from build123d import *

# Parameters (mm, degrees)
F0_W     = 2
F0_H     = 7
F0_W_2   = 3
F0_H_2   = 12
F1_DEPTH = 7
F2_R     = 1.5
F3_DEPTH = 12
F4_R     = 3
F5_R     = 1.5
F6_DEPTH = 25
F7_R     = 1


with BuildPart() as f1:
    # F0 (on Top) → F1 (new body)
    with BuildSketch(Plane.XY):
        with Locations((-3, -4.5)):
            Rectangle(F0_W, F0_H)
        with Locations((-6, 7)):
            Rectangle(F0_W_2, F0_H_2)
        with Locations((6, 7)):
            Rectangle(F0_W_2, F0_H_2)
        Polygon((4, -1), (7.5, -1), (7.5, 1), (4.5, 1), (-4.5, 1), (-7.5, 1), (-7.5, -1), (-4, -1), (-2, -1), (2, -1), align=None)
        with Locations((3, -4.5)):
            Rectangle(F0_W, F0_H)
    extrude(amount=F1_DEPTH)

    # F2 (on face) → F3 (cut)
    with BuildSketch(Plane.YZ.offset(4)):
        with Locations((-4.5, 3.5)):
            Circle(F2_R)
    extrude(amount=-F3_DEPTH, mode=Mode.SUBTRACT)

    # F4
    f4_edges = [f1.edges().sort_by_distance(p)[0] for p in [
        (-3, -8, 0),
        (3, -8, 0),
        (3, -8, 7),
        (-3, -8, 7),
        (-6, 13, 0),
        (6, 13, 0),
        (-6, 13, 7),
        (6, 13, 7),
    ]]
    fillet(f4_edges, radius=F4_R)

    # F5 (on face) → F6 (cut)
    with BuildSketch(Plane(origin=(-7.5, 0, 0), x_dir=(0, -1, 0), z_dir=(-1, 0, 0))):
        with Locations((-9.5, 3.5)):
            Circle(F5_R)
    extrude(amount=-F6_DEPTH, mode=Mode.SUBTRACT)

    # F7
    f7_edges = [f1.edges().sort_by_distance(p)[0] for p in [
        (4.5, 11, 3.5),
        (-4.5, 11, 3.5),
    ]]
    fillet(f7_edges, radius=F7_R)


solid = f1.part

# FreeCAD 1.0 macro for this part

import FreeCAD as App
import Part
import Sketcher

V = App.Vector
Q = App.Units.Quantity


def edges_at(feature, points):
    """Names of the edges that pass closest to the given points."""
    edges = feature.Shape.Edges
    near = lambda p: min(range(len(edges)), key=lambda i: edges[i].distToShape(Part.Vertex(*p))[0])
    return sorted({f"Edge{near(p) + 1}" for p in points})

doc = App.newDocument("Part")
body = doc.addObject("PartDesign::Body", "Body")

sketch1 = doc.addObject("Sketcher::SketchObject", "Sketch")
body.addObject(sketch1)
sketch1.AttachmentSupport = (doc.XY_Plane, [""])
sketch1.MapMode = "FlatFace"
sketch1.addGeometry(Part.LineSegment(V(-4, -1, 0), V(-4, -8, 0)), False)
sketch1.addGeometry(Part.LineSegment(V(-4, -8, 0), V(-2, -8, 0)), False)
sketch1.addGeometry(Part.LineSegment(V(-2, -8, 0), V(-2, -1, 0)), False)
sketch1.addGeometry(Part.LineSegment(V(-2, -1, 0), V(2, -1, 0)), False)
sketch1.addGeometry(Part.LineSegment(V(2, -1, 0), V(2, -8, 0)), False)
sketch1.addGeometry(Part.LineSegment(V(2, -8, 0), V(4, -8, 0)), False)
sketch1.addGeometry(Part.LineSegment(V(4, -8, 0), V(4, -1, 0)), False)
sketch1.addGeometry(Part.LineSegment(V(4, -1, 0), V(7.5, -1, 0)), False)
sketch1.addGeometry(Part.LineSegment(V(7.5, -1, 0), V(7.5, 13, 0)), False)
sketch1.addGeometry(Part.LineSegment(V(7.5, 13, 0), V(4.5, 13, 0)), False)
sketch1.addGeometry(Part.LineSegment(V(4.5, 13, 0), V(4.5, 1, 0)), False)
sketch1.addGeometry(Part.LineSegment(V(4.5, 1, 0), V(-4.5, 1, 0)), False)
sketch1.addGeometry(Part.LineSegment(V(-4.5, 1, 0), V(-4.5, 13, 0)), False)
sketch1.addGeometry(Part.LineSegment(V(-4.5, 13, 0), V(-7.5, 13, 0)), False)
sketch1.addGeometry(Part.LineSegment(V(-7.5, 13, 0), V(-7.5, -1, 0)), False)
sketch1.addGeometry(Part.LineSegment(V(-7.5, -1, 0), V(-4, -1, 0)), False)
sketch1.addConstraint(Sketcher.Constraint("Coincident", 0, 2, 1, 1))
sketch1.addConstraint(Sketcher.Constraint("Coincident", 1, 2, 2, 1))
sketch1.addConstraint(Sketcher.Constraint("Coincident", 2, 2, 3, 1))
sketch1.addConstraint(Sketcher.Constraint("Coincident", 3, 2, 4, 1))
sketch1.addConstraint(Sketcher.Constraint("Coincident", 4, 2, 5, 1))
sketch1.addConstraint(Sketcher.Constraint("Coincident", 5, 2, 6, 1))
sketch1.addConstraint(Sketcher.Constraint("Coincident", 6, 2, 7, 1))
sketch1.addConstraint(Sketcher.Constraint("Coincident", 7, 2, 8, 1))
sketch1.addConstraint(Sketcher.Constraint("Coincident", 8, 2, 9, 1))
sketch1.addConstraint(Sketcher.Constraint("Coincident", 9, 2, 10, 1))
sketch1.addConstraint(Sketcher.Constraint("Coincident", 10, 2, 11, 1))
sketch1.addConstraint(Sketcher.Constraint("Coincident", 11, 2, 12, 1))
sketch1.addConstraint(Sketcher.Constraint("Coincident", 12, 2, 13, 1))
sketch1.addConstraint(Sketcher.Constraint("Coincident", 13, 2, 14, 1))
sketch1.addConstraint(Sketcher.Constraint("Coincident", 14, 2, 15, 1))
sketch1.addConstraint(Sketcher.Constraint("Coincident", 15, 2, 0, 1))
sketch1.addConstraint(Sketcher.Constraint("Vertical", 0))
sketch1.addConstraint(Sketcher.Constraint("Horizontal", 1))
sketch1.addConstraint(Sketcher.Constraint("Vertical", 2))
sketch1.addConstraint(Sketcher.Constraint("Horizontal", 3))
sketch1.addConstraint(Sketcher.Constraint("Vertical", 4))
sketch1.addConstraint(Sketcher.Constraint("Horizontal", 5))
sketch1.addConstraint(Sketcher.Constraint("Vertical", 6))
sketch1.addConstraint(Sketcher.Constraint("Horizontal", 7))
sketch1.addConstraint(Sketcher.Constraint("Vertical", 8))
sketch1.addConstraint(Sketcher.Constraint("Horizontal", 9))
sketch1.addConstraint(Sketcher.Constraint("Vertical", 10))
sketch1.addConstraint(Sketcher.Constraint("Horizontal", 11))
sketch1.addConstraint(Sketcher.Constraint("Vertical", 12))
sketch1.addConstraint(Sketcher.Constraint("Horizontal", 13))
sketch1.addConstraint(Sketcher.Constraint("Vertical", 14))
sketch1.addConstraint(Sketcher.Constraint("Horizontal", 15))
sketch1.addConstraint(Sketcher.Constraint("Symmetric", 1, 2, 4, 2, -2))
sketch1.addConstraint(Sketcher.Constraint("Symmetric", 9, 2, 12, 2, -2))
sketch1.addConstraint(Sketcher.Constraint("Symmetric", 7, 2, 14, 2, -2))
sketch1.addConstraint(Sketcher.Constraint("Horizontal", 3, 2, 6, 2))
sketch1.addConstraint(Sketcher.Constraint("Equal", 1, 5))
sketch1.addConstraint(Sketcher.Constraint("DistanceX", 1, 1, 1, 2, Q("2 mm")))
sketch1.addConstraint(Sketcher.Constraint("DistanceX", 3, 1, 3, 2, Q("4 mm")))
sketch1.addConstraint(Sketcher.Constraint("DistanceX", 9, 2, 9, 1, Q("3 mm")))
sketch1.addConstraint(Sketcher.Constraint("DistanceX", 11, 2, 11, 1, Q("9 mm")))
sketch1.addConstraint(Sketcher.Constraint("DistanceY", 0, 2, 0, 1, Q("7 mm")))
sketch1.addConstraint(Sketcher.Constraint("DistanceY", 8, 1, 8, 2, Q("14 mm")))
sketch1.addConstraint(Sketcher.Constraint("DistanceY", 10, 2, 10, 1, Q("12 mm")))
sketch1.addConstraint(Sketcher.Constraint("DistanceY", 0, 2, -1, 1, Q("8 mm")))
pad1 = doc.addObject("PartDesign::Pad", "Pad")
body.addObject(pad1)
pad1.Profile = sketch1
pad1.Length = 7

sketch2 = doc.addObject("Sketcher::SketchObject", "Sketch001")
body.addObject(sketch2)
sketch2.AttachmentSupport = (doc.YZ_Plane, [""])
sketch2.MapMode = "FlatFace"
sketch2.AttachmentOffset = App.Placement(V(0, 0, 4), App.Rotation())
sketch2.addGeometry(Part.Circle(V(-4.5, 3.5, 0), V(0, 0, 1), 1.5), False)
sketch2.addConstraint(Sketcher.Constraint("Diameter", 0, Q("3 mm")))
sketch2.addConstraint(Sketcher.Constraint("DistanceX", 0, 3, -1, 1, Q("4.5 mm")))
sketch2.addConstraint(Sketcher.Constraint("DistanceY", -1, 1, 0, 3, Q("3.5 mm")))
pocket1 = doc.addObject("PartDesign::Pocket", "Pocket")
body.addObject(pocket1)
pocket1.Profile = sketch2
pocket1.Length = 12
doc.recompute()

fillet = doc.addObject("PartDesign::Fillet", "Fillet")
body.addObject(fillet)
fillet.Base = (pocket1, edges_at(pocket1, [
    (-3, -8, 0),
    (3, -8, 0),
    (3, -8, 7),
    (-3, -8, 7),
    (-6, 13, 0),
    (6, 13, 0),
    (-6, 13, 7),
    (6, 13, 7),
]))
fillet.Radius = 3

sketch3 = doc.addObject("Sketcher::SketchObject", "Sketch002")
body.addObject(sketch3)
sketch3.AttachmentSupport = (doc.YZ_Plane, [""])
sketch3.MapMode = "FlatFace"
sketch3.AttachmentOffset = App.Placement(V(0, 0, -7.5), App.Rotation())
sketch3.addGeometry(Part.Circle(V(9.5, 3.5, 0), V(0, 0, 1), 1.5), False)
sketch3.addConstraint(Sketcher.Constraint("Diameter", 0, Q("3 mm")))
sketch3.addConstraint(Sketcher.Constraint("DistanceX", -1, 1, 0, 3, Q("9.5 mm")))
sketch3.addConstraint(Sketcher.Constraint("DistanceY", -1, 1, 0, 3, Q("3.5 mm")))
pocket2 = doc.addObject("PartDesign::Pocket", "Pocket001")
body.addObject(pocket2)
pocket2.Profile = sketch3
pocket2.Length = 25
pocket2.Reversed = True
doc.recompute()

fillet2 = doc.addObject("PartDesign::Fillet", "Fillet001")
body.addObject(fillet2)
fillet2.Base = (pocket2, edges_at(pocket2, [(4.5, 11, 3.5), (-4.5, 11, 3.5)]))
fillet2.Radius = 1

doc.recompute()
